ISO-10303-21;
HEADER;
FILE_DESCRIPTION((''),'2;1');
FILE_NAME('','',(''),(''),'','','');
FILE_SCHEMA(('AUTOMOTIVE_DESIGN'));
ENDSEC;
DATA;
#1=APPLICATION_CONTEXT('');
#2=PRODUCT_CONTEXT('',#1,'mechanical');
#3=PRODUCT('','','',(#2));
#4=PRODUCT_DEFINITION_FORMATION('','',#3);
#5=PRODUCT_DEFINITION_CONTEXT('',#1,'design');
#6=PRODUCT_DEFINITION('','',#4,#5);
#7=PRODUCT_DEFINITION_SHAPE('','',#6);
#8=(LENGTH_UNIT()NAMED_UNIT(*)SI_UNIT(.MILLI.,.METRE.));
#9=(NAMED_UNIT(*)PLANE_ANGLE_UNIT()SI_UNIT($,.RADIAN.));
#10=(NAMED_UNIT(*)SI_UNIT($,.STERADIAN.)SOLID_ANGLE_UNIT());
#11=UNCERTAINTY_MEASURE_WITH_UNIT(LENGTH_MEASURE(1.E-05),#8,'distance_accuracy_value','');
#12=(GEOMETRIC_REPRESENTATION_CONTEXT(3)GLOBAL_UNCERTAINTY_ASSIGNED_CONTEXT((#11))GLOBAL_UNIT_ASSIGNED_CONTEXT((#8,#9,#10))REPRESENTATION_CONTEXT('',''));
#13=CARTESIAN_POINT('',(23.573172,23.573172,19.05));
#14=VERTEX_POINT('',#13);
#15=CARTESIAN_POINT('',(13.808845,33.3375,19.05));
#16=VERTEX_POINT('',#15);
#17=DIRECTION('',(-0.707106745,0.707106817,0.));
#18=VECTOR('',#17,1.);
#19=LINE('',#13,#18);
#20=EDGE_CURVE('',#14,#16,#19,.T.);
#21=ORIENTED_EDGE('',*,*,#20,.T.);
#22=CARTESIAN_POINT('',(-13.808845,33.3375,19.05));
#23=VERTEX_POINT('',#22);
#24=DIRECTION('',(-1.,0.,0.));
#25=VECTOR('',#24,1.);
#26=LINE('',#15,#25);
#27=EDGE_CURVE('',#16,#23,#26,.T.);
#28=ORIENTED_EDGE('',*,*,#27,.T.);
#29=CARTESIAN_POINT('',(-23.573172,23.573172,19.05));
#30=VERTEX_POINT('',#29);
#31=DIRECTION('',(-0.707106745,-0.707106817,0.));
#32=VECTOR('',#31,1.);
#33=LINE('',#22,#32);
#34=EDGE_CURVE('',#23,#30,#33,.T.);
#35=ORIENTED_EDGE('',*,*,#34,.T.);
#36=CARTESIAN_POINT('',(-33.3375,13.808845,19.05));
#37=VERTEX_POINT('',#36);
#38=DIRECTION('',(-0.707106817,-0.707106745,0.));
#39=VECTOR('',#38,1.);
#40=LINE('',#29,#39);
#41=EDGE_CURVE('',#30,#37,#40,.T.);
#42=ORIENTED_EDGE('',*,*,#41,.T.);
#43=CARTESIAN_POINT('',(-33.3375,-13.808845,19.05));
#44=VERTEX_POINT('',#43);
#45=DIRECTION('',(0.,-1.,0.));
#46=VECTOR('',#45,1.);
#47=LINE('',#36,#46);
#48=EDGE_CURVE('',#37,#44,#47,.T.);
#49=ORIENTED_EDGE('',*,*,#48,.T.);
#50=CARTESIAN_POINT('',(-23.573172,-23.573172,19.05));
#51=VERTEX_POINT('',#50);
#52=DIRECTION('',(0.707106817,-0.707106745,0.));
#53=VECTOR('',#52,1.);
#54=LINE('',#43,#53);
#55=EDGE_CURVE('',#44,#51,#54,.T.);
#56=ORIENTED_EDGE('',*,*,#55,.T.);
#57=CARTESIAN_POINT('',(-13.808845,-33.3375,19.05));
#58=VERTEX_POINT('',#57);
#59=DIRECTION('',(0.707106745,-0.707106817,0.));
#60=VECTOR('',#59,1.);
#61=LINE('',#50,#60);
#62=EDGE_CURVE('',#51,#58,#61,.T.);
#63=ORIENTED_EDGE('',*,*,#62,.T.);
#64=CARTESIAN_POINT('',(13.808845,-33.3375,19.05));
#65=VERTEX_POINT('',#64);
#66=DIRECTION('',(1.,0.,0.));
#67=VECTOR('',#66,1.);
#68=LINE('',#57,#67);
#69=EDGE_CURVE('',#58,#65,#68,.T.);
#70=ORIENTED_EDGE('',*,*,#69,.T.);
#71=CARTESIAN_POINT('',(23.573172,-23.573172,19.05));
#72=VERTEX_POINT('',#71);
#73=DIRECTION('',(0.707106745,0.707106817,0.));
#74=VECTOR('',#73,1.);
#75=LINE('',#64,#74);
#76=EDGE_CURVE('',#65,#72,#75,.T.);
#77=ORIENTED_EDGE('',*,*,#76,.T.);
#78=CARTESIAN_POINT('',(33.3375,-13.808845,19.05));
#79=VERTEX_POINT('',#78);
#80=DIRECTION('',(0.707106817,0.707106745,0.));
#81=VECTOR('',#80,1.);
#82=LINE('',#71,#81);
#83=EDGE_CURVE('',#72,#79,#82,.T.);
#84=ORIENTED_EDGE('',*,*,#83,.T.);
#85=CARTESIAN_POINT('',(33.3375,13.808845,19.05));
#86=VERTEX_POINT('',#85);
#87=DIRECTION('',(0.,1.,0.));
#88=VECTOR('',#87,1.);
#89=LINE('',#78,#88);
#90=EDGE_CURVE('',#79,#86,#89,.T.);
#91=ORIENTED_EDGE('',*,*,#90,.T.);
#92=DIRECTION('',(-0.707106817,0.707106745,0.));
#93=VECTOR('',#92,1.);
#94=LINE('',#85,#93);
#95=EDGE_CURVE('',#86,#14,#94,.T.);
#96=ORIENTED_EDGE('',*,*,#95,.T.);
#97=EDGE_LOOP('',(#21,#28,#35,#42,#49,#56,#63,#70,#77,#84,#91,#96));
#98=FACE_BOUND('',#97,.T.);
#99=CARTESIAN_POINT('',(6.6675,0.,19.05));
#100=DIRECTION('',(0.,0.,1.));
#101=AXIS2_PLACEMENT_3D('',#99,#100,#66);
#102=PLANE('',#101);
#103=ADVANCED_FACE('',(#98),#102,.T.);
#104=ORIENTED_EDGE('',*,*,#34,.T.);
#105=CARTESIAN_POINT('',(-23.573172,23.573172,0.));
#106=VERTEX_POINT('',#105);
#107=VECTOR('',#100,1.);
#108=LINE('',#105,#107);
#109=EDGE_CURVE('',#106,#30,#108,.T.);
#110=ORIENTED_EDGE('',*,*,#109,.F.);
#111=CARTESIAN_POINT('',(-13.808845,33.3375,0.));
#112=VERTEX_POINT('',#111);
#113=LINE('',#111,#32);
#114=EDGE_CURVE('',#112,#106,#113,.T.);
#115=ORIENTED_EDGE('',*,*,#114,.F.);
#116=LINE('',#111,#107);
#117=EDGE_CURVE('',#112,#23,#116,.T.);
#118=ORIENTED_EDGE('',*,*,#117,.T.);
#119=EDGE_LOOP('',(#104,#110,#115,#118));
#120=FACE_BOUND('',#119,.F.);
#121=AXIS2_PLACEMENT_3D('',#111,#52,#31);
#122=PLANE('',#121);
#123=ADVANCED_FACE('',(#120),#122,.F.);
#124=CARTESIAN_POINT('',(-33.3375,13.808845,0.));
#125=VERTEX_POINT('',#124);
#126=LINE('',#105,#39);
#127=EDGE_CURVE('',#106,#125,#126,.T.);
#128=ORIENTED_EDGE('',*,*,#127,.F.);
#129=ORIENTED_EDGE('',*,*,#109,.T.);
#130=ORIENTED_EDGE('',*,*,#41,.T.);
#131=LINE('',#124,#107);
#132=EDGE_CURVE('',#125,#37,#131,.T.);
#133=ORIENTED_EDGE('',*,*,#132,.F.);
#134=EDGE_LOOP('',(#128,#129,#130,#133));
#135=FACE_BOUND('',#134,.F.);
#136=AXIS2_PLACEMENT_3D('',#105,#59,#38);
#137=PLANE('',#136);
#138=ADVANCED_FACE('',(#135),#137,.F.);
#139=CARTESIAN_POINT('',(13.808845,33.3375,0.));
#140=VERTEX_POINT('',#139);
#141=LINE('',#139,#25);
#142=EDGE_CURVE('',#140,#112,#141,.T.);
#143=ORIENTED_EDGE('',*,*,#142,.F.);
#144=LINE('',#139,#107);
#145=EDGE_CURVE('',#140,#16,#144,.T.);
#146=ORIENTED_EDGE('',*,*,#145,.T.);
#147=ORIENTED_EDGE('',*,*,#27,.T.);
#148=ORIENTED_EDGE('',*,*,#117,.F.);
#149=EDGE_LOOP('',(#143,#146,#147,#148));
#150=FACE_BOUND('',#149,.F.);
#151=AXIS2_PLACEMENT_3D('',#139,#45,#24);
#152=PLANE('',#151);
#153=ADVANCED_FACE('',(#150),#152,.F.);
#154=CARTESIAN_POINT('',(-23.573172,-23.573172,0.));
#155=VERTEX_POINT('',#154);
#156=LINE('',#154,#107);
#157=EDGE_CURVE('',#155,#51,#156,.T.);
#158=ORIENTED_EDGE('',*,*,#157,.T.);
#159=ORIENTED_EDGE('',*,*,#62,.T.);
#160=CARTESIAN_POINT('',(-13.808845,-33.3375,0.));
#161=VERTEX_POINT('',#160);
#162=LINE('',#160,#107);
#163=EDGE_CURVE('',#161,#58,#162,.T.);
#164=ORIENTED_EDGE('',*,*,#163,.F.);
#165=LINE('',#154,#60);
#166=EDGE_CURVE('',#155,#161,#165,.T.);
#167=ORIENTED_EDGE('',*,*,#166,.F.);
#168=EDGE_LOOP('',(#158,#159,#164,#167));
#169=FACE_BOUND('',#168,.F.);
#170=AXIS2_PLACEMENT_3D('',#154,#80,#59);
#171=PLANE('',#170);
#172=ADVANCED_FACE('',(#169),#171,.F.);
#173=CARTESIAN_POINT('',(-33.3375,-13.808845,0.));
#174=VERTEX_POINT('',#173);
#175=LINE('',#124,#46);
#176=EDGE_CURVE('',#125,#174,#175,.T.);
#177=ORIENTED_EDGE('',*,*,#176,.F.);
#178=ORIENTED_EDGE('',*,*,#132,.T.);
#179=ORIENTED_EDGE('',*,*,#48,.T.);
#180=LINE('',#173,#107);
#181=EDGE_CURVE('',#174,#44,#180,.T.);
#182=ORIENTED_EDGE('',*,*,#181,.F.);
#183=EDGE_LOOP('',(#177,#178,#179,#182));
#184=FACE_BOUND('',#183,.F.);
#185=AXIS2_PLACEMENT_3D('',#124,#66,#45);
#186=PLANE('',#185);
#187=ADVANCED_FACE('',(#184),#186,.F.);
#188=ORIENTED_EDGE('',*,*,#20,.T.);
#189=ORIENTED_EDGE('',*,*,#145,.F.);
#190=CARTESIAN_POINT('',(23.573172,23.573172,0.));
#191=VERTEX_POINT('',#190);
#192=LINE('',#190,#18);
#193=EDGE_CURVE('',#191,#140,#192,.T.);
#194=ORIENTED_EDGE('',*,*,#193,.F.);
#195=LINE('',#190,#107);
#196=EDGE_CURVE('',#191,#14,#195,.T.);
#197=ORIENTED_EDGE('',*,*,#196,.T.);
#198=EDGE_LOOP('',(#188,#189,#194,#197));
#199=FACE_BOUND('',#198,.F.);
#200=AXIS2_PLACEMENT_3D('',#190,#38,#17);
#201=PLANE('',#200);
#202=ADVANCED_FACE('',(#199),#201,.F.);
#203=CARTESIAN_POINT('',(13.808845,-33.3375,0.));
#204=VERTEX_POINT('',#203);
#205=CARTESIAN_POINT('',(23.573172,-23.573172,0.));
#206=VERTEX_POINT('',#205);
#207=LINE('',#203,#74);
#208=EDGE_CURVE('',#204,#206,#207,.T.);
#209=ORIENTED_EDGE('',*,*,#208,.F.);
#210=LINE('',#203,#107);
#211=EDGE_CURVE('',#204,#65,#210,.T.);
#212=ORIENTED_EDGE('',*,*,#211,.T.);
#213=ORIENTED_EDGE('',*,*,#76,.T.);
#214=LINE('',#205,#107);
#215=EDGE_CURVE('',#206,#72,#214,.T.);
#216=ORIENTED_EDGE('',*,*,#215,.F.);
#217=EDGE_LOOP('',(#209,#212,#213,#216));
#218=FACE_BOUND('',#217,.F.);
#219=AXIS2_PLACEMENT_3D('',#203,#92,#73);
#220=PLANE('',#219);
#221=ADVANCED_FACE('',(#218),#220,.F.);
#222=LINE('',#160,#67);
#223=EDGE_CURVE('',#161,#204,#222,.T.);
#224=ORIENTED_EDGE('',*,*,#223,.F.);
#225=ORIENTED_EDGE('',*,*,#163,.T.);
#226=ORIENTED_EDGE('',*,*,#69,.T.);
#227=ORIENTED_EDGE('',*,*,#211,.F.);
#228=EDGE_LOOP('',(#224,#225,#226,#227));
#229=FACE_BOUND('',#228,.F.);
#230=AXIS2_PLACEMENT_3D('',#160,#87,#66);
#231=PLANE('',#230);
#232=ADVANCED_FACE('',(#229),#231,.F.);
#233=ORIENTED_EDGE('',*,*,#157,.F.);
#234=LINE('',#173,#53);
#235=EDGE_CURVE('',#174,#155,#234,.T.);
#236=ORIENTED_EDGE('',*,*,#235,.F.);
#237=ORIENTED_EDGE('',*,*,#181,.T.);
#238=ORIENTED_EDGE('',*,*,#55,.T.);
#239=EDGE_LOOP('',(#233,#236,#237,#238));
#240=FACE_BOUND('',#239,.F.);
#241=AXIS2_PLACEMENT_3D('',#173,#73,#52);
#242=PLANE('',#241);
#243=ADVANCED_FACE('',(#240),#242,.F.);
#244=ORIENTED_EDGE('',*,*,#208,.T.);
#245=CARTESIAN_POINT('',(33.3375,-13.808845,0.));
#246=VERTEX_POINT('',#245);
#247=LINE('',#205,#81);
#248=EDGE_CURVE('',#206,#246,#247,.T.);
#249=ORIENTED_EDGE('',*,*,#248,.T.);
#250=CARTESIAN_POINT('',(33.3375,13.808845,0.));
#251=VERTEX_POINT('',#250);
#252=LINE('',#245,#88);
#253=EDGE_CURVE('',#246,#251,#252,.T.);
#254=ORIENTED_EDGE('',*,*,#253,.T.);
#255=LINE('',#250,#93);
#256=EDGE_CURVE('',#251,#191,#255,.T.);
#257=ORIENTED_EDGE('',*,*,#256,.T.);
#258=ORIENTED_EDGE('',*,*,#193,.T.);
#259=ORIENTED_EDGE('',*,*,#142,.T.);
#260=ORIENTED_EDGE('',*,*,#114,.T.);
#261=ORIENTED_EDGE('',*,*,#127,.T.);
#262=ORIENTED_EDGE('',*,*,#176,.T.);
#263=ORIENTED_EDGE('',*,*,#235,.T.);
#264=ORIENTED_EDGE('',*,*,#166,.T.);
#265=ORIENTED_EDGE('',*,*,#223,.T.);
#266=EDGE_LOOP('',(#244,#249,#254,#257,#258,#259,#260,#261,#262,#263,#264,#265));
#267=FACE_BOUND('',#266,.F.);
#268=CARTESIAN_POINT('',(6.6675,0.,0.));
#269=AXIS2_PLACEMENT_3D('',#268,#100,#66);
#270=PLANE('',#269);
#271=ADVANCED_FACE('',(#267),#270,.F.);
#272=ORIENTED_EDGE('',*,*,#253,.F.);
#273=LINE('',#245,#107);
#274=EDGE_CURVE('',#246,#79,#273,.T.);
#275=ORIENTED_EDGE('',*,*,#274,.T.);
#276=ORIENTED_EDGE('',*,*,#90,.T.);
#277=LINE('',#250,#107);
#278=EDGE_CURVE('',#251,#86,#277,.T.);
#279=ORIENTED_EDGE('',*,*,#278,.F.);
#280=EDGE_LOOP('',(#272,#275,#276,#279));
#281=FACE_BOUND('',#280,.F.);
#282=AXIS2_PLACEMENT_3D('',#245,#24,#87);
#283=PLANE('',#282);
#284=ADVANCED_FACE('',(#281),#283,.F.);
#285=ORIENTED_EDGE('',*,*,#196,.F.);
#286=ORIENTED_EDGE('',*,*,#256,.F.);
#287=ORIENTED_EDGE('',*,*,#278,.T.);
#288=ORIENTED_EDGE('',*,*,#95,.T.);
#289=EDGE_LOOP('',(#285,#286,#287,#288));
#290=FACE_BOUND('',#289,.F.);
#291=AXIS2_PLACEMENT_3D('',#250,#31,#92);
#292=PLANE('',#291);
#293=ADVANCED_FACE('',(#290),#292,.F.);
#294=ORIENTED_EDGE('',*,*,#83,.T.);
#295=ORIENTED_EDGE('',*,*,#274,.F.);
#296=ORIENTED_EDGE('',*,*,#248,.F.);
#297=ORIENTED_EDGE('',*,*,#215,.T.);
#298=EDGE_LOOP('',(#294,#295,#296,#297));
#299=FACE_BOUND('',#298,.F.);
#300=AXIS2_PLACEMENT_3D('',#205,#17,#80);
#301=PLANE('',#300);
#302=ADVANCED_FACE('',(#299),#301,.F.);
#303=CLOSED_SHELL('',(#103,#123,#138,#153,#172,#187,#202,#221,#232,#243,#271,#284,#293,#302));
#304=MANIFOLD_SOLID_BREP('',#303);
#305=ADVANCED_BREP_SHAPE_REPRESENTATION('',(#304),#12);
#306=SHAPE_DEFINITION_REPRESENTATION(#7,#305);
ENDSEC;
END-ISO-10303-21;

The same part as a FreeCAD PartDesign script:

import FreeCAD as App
import Part
import Sketcher

V = App.Vector
Q = App.Units.Quantity

doc = App.newDocument("Part")
params = doc.addObject("Spreadsheet::Sheet", "Params")
for row, (alias, value) in enumerate([
    ("pad1_length", "0.75 in"),
], start=1):
    params.set(f"A{row}", alias)
    params.set(f"B{row}", "=" + value)
    params.setAlias(f"B{row}", alias)

body = doc.addObject("PartDesign::Body", "Body")

sketch1 = body.newObject("Sketcher::SketchObject", "Sketch")
sketch1.AttachmentSupport = (doc.getObject("XY_Plane"), [""])
sketch1.MapMode = "FlatFace"
sketch1.addGeometry([
    Part.LineSegment(V(-23.573172, 23.573172, 0), V(-33.3375, 13.808845, 0)),
    Part.LineSegment(V(-33.3375, 13.808845, 0), V(-33.3375, -13.808845, 0)),
    Part.LineSegment(V(-33.3375, -13.808845, 0), V(-23.573172, -23.573172, 0)),
    Part.LineSegment(V(-23.573172, -23.573172, 0), V(-13.808845, -33.3375, 0)),
    Part.LineSegment(V(-13.808845, -33.3375, 0), V(13.808845, -33.3375, 0)),
    Part.LineSegment(V(13.808845, -33.3375, 0), V(23.573172, -23.573172, 0)),
    Part.LineSegment(V(23.573172, -23.573172, 0), V(33.3375, -13.808845, 0)),
    Part.LineSegment(V(33.3375, -13.808845, 0), V(33.3375, 13.808845, 0)),
    Part.LineSegment(V(33.3375, 13.808845, 0), V(23.573172, 23.573172, 0)),
    Part.LineSegment(V(23.573172, 23.573172, 0), V(13.808845, 33.3375, 0)),
    Part.LineSegment(V(13.808845, 33.3375, 0), V(-13.808845, 33.3375, 0)),
    Part.LineSegment(V(-13.808845, 33.3375, 0), V(-23.573172, 23.573172, 0)),
], False)
sketch1.addConstraint([
    Sketcher.Constraint("Coincident", 0, 2, 1, 1),
    Sketcher.Constraint("Coincident", 1, 2, 2, 1),
    Sketcher.Constraint("Coincident", 2, 2, 3, 1),
    Sketcher.Constraint("Coincident", 3, 2, 4, 1),
    Sketcher.Constraint("Coincident", 4, 2, 5, 1),
    Sketcher.Constraint("Coincident", 5, 2, 6, 1),
    Sketcher.Constraint("Coincident", 6, 2, 7, 1),
    Sketcher.Constraint("Coincident", 7, 2, 8, 1),
    Sketcher.Constraint("Coincident", 8, 2, 9, 1),
    Sketcher.Constraint("Coincident", 9, 2, 10, 1),
    Sketcher.Constraint("Coincident", 10, 2, 11, 1),
    Sketcher.Constraint("Coincident", 11, 2, 0, 1),
    Sketcher.Constraint("Vertical", 1),
    Sketcher.Constraint("Horizontal", 4),
    Sketcher.Constraint("Vertical", 7),
    Sketcher.Constraint("Horizontal", 10),
    Sketcher.Constraint("Symmetric", 0, 2, 6, 2, -1, 1),
    Sketcher.Constraint("Symmetric", 2, 2, 8, 2, -1, 1),
    Sketcher.Constraint("Symmetric", 3, 2, 9, 2, -1, 1),
    Sketcher.Constraint("Symmetric", 5, 2, 11, 2, -1, 1),
    Sketcher.Constraint("Symmetric", 2, 2, 5, 2, -2),
    Sketcher.Constraint("Perpendicular", 0, 2),
    Sketcher.Constraint("Parallel", 2, 3),
    Sketcher.Constraint("Perpendicular", 3, 5),
    Sketcher.Constraint("Perpendicular", 6, 8),
    Sketcher.Constraint("Perpendicular", 9, 11),
    Sketcher.Constraint("Horizontal", 1, 2, 6, 2),
    Sketcher.Constraint("Equal", 10, 1),
    Sketcher.Constraint("Equal", 2, 3),
    Sketcher.Constraint("DistanceX", 0, 2, -1, 1, Q("1.3125 in")),
    Sketcher.Constraint("DistanceX", 4, 1, 4, 2, Q("27.61769 mm")),
])
pad1 = body.newObject("PartDesign::Pad", "Pad")
pad1.Profile = sketch1
pad1.setExpression("Length", "Params.pad1_length")

doc.recompute()
